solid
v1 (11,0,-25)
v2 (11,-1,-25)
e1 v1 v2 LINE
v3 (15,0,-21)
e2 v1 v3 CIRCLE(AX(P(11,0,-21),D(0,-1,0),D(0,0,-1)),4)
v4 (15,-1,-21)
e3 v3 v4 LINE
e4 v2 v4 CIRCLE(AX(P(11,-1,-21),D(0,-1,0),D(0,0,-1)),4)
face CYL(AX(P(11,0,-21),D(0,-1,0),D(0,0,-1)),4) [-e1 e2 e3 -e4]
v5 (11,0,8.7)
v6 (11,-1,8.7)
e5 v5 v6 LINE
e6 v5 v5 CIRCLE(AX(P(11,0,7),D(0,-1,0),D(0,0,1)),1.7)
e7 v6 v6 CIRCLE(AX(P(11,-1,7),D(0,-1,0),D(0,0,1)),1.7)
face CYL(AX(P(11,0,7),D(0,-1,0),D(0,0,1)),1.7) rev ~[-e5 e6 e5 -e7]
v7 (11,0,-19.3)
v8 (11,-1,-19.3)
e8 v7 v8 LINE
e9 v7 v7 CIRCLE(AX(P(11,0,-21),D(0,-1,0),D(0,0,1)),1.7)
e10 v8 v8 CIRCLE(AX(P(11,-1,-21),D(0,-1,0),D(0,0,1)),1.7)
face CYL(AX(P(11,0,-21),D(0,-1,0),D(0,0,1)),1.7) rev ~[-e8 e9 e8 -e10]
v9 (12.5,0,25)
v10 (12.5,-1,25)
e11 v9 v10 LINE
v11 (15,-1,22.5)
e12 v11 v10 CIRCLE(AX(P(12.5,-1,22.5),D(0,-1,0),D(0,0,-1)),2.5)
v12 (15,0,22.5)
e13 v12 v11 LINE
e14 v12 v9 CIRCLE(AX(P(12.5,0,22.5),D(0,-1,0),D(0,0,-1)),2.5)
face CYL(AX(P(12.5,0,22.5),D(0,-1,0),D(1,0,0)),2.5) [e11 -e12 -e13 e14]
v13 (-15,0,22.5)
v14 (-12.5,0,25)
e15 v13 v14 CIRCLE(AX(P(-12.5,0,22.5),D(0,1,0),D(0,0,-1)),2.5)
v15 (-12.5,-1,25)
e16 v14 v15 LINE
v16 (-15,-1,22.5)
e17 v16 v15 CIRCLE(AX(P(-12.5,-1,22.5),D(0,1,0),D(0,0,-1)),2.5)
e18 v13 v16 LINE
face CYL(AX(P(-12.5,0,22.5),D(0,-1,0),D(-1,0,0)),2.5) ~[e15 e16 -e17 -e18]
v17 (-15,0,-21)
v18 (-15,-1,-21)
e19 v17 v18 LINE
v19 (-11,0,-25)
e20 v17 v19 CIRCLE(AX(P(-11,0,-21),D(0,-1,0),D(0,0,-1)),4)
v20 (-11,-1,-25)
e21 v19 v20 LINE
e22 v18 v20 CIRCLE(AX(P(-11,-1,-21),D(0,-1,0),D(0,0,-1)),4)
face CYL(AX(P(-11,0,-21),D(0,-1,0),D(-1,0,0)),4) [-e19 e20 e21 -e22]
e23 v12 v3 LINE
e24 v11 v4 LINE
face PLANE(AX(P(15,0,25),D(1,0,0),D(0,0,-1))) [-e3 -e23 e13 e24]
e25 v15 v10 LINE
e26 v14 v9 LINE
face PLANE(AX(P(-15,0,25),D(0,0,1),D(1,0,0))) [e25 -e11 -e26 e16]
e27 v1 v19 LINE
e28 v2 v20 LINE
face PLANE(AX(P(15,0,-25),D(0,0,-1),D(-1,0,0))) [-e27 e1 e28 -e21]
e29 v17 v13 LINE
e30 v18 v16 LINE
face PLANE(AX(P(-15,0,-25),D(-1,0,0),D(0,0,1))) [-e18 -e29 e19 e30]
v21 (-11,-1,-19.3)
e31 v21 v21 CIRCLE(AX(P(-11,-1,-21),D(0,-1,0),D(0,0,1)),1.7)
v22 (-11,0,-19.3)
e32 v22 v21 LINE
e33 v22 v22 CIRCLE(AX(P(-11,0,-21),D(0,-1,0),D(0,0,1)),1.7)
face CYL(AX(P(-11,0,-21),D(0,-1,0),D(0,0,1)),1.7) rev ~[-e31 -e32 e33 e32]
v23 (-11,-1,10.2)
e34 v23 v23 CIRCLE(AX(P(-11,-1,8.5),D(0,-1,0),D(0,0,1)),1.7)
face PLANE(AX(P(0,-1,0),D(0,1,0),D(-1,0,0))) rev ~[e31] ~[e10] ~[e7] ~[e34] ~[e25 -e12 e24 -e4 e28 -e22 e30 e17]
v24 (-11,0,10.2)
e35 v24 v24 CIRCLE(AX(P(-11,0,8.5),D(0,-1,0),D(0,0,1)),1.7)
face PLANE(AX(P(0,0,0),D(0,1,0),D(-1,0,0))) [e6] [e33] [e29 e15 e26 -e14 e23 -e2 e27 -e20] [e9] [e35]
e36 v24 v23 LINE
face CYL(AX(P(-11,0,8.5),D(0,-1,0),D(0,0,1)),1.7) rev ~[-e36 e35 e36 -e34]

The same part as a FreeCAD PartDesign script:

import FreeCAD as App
import Part
import Sketcher

V = App.Vector


def edges_at(feature, points):
    """Names of the edges that pass closest to the given points."""
    edges = feature.Shape.Edges
    near = lambda p: min(range(len(edges)), key=lambda i: edges[i].distToShape(Part.Vertex(*p))[0])
    return sorted({f"Edge{near(p) + 1}" for p in points})


def add_polygon(sketch, points):
    """Adds a closed chain of lines whose ends are joined by coincident constraints."""
    first, n = sketch.GeometryCount, len(points)
    for a, b in zip(points, points[1:] + points[:1]):
        sketch.addGeometry(Part.LineSegment(App.Vector(*a, 0), App.Vector(*b, 0)), False)
    for i in range(n):
        sketch.addConstraint(Sketcher.Constraint("Coincident", first + i, 2, first + (i + 1) % n, 1))

doc = App.newDocument("Part")
body = doc.addObject("PartDesign::Body", "Body")

sketch1 = body.newObject("Sketcher::SketchObject", "Sketch")
sketch1.AttachmentSupport = (doc.getObject("XZ_Plane"), [""])
sketch1.MapMode = "FlatFace"
add_polygon(sketch1, [(-15, -25), (-15, 25), (15, 25), (15, -25)])
sketch1.addConstraint([
    Sketcher.Constraint("Vertical", 0),
    Sketcher.Constraint("Horizontal", 1),
    Sketcher.Constraint("Vertical", 2),
    Sketcher.Constraint("Horizontal", 3),
    Sketcher.Constraint("Symmetric", 0, 2, 2, 2, -1, 1),
    Sketcher.Constraint("DistanceX", 0, 2, -1, 1, 15.0),
    Sketcher.Constraint("DistanceY", -1, 1, 0, 2, 25.0),
])
pad1 = body.newObject("PartDesign::Pad", "Pad")
pad1.Profile = sketch1
pad1.Length = 1
doc.recompute()

fillet = body.newObject("PartDesign::Fillet", "Fillet")
fillet.Base = (pad1, edges_at(pad1, [(-15, -0.5, 25), (15, -0.5, 25)]))
fillet.Radius = 2.5
doc.recompute()

fillet2 = body.newObject("PartDesign::Fillet", "Fillet001")
fillet2.Base = (fillet, edges_at(fillet, [(-15, -0.5, -25), (15, -0.5, -25)]))
fillet2.Radius = 4

sketch2 = body.newObject("Sketcher::SketchObject", "Sketch001")
sketch2.AttachmentSupport = (doc.getObject("XZ_Plane"), [""])
sketch2.MapMode = "FlatFace"
sketch2.addGeometry([
    Part.Circle(V(-11, -21, 0), V(0, 0, 1), 1.7),
    Part.Circle(V(11, -21, 0), V(0, 0, 1), 1.7),
    Part.Circle(V(11, 7, 0), V(0, 0, 1), 1.7),
    Part.Circle(V(-11, 8.5, 0), V(0, 0, 1), 1.7),
], False)
sketch2.addConstraint([
    Sketcher.Constraint("Equal", 0, 1),
    Sketcher.Constraint("Equal", 1, 2),
    Sketcher.Constraint("Equal", 2, 3),
    Sketcher.Constraint("Symmetric", 0, 3, 1, 3, -2),
    Sketcher.Constraint("Vertical", 1, 3, 2, 3),
    Sketcher.Constraint("Vertical", 0, 3, 3, 3),
    Sketcher.Constraint("Diameter", 0, 3.4),
    Sketcher.Constraint("DistanceX", 0, 3, -1, 1, 11.0),
    Sketcher.Constraint("DistanceY", 0, 3, -1, 1, 21.0),
    Sketcher.Constraint("DistanceY", -1, 1, 2, 3, 7.0),
    Sketcher.Constraint("DistanceY", -1, 1, 3, 3, 8.5),
])
doc.recompute()
hole = body.newObject("PartDesign::Hole", "Hole")
hole.Profile = sketch2
hole.ThreadType = "None"
hole.Diameter = 3.4
hole.DepthType = "ThroughAll"
hole.Reversed = True

doc.recompute()
